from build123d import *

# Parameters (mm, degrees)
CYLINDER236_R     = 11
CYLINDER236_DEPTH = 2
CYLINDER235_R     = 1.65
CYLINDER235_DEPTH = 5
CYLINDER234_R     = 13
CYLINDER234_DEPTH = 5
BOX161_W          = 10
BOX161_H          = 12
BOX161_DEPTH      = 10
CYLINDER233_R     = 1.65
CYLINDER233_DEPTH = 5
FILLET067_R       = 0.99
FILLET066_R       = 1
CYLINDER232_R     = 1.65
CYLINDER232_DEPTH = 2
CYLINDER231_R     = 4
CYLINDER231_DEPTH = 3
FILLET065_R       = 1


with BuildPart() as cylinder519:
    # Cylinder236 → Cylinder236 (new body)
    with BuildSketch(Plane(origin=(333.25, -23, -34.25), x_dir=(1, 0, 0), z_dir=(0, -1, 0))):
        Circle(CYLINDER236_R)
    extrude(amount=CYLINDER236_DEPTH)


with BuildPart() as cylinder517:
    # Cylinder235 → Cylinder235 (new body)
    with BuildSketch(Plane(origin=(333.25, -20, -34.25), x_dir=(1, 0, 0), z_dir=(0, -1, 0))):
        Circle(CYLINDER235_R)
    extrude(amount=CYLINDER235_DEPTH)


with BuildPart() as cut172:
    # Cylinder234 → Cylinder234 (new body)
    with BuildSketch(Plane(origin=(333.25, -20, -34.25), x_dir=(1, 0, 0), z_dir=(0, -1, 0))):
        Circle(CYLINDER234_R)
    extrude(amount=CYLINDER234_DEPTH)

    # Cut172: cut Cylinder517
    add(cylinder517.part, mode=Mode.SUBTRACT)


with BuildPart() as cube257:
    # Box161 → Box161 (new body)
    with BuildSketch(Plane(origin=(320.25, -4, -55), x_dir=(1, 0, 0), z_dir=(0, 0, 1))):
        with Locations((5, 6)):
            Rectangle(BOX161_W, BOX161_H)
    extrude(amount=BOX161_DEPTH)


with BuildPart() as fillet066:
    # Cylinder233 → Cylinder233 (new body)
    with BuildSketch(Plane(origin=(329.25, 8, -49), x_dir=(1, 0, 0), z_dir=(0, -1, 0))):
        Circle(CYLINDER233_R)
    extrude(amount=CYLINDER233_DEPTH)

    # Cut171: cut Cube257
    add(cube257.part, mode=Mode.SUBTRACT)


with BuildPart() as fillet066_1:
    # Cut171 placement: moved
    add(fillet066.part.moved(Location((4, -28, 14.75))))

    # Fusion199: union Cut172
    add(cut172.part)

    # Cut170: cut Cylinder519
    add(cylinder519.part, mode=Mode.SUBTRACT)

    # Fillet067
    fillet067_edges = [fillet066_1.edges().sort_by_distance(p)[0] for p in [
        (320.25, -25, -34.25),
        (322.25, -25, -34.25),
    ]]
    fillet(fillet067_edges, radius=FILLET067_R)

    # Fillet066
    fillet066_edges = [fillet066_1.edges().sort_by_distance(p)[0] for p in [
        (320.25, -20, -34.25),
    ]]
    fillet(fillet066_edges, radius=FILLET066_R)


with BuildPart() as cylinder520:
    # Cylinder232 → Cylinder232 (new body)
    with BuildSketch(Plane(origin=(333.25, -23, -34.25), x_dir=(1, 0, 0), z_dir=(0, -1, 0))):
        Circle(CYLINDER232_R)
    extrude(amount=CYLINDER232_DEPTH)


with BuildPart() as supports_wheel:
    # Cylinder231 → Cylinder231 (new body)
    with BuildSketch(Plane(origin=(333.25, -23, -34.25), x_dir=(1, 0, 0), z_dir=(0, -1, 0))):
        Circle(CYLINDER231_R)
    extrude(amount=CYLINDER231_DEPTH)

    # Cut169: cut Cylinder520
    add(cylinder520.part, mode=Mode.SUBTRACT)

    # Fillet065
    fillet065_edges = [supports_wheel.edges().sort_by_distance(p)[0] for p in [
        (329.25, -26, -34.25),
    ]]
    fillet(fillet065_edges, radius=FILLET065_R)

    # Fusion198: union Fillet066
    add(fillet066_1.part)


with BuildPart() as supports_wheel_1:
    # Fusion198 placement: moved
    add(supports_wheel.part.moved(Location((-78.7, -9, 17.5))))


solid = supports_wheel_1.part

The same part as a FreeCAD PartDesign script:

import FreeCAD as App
import Part
import Sketcher

V = App.Vector


def edges_at(feature, points):
    """Names of the edges that pass closest to the given points."""
    edges = feature.Shape.Edges
    near = lambda p: min(range(len(edges)), key=lambda i: edges[i].distToShape(Part.Vertex(*p))[0])
    return sorted({f"Edge{near(p) + 1}" for p in points})


def add_polygon(sketch, points):
    """Adds a closed chain of lines whose ends are joined by coincident constraints."""
    first, n = sketch.GeometryCount, len(points)
    for a, b in zip(points, points[1:] + points[:1]):
        sketch.addGeometry(Part.LineSegment(App.Vector(*a, 0), App.Vector(*b, 0)), False)
    for i in range(n):
        sketch.addConstraint(Sketcher.Constraint("Coincident", first + i, 2, first + (i + 1) % n, 1))

doc = App.newDocument("Part")
params = doc.addObject("Spreadsheet::Sheet", "Params")
for row, (alias, value) in enumerate([
    ("sketch1_diameter", "22 mm"),
    ("pad1_length", "2 mm"),
    ("sketch2_diameter", "3.3 mm"),
    ("pad2_length", "5 mm"),
    ("sketch3_diameter", "26 mm"),
    ("pad3_length", "5 mm"),
    ("sketch4_width", "10 mm"),
    ("sketch4_height", "12 mm"),
    ("pad4_length", "10 mm"),
    ("sketch5_diameter", "3.3 mm"),
    ("pad5_length", "5 mm"),
    ("fillet_radius", "0.99 mm"),
    ("fillet2_radius", "1 mm"),
    ("sketch6_diameter", "3.3 mm"),
    ("pad6_length", "2 mm"),
    ("sketch7_diameter", "8 mm"),
    ("pad7_length", "3 mm"),
    ("fillet3_radius", "1 mm"),
], start=1):
    params.set(f"A{row}", alias)
    params.set(f"B{row}", "=" + value)
    params.setAlias(f"B{row}", alias)

body = doc.addObject("PartDesign::Body", "Body")

sketch1 = doc.addObject("Sketcher::SketchObject", "Sketch")
body.addObject(sketch1)
sketch1.AttachmentSupport = (doc.XZ_Plane, [""])
sketch1.MapMode = "FlatFace"
sketch1.AttachmentOffset = App.Placement(V(0, 0, 23), App.Rotation())
sketch1.addGeometry(Part.Circle(V(333, -34, 0), V(0, 0, 1), 11), False)
sketch1.addConstraint([
    Sketcher.Constraint("Diameter", 0, 22.0),
    Sketcher.Constraint("DistanceX", -1, 1, 0, 3, 333.25),
    Sketcher.Constraint("DistanceY", 0, 3, -1, 1, 34.25),
])
sketch1.setExpression("Constraints[0]", "Params.sketch1_diameter")
pad1 = doc.addObject("PartDesign::Pad", "Pad")
body.addObject(pad1)
pad1.Profile = sketch1
pad1.setExpression("Length", "Params.pad1_length")
body2 = doc.addObject("PartDesign::Body", "Body001")

sketch2 = doc.addObject("Sketcher::SketchObject", "Sketch001")
body2.addObject(sketch2)
sketch2.AttachmentSupport = (doc.getObject("XZ_Plane001"), [""])
sketch2.MapMode = "FlatFace"
sketch2.AttachmentOffset = App.Placement(V(0, 0, 20), App.Rotation())
sketch2.addGeometry(Part.Circle(V(333.2, -34.2, 0), V(0, 0, 1), 1.6), False)
sketch2.addConstraint([
    Sketcher.Constraint("Diameter", 0, 3.3),
    Sketcher.Constraint("DistanceX", -1, 1, 0, 3, 333.25),
    Sketcher.Constraint("DistanceY", 0, 3, -1, 1, 34.25),
])
sketch2.setExpression("Constraints[0]", "Params.sketch2_diameter")
pad2 = doc.addObject("PartDesign::Pad", "Pad001")
body2.addObject(pad2)
pad2.Profile = sketch2
pad2.setExpression("Length", "Params.pad2_length")
body3 = doc.addObject("PartDesign::Body", "Body002")

sketch3 = doc.addObject("Sketcher::SketchObject", "Sketch002")
body3.addObject(sketch3)
sketch3.AttachmentSupport = (doc.getObject("XZ_Plane002"), [""])
sketch3.MapMode = "FlatFace"
sketch3.AttachmentOffset = App.Placement(V(0, 0, 20), App.Rotation())
sketch3.addGeometry(Part.Circle(V(333, -34, 0), V(0, 0, 1), 13), False)
sketch3.addConstraint([
    Sketcher.Constraint("Diameter", 0, 26.0),
    Sketcher.Constraint("DistanceX", -1, 1, 0, 3, 333.25),
    Sketcher.Constraint("DistanceY", 0, 3, -1, 1, 34.25),
])
sketch3.setExpression("Constraints[0]", "Params.sketch3_diameter")
pad3 = doc.addObject("PartDesign::Pad", "Pad002")
body3.addObject(pad3)
pad3.Profile = sketch3
pad3.setExpression("Length", "Params.pad3_length")
doc.recompute()

boolean = doc.addObject("PartDesign::Boolean", "Boolean")
body3.addObject(boolean)
boolean.Type = "Cut"
boolean.addObjects([body2])
body4 = doc.addObject("PartDesign::Body", "Body003")

sketch4 = doc.addObject("Sketcher::SketchObject", "Sketch003")
body4.addObject(sketch4)
sketch4.AttachmentSupport = (doc.getObject("XY_Plane003"), [""])
sketch4.MapMode = "FlatFace"
sketch4.AttachmentOffset = App.Placement(V(0, 0, -55), App.Rotation())
add_polygon(sketch4, [(320, 8), (320, -4), (330, -4), (330, 8)])
sketch4.addConstraint([
    Sketcher.Constraint("Vertical", 0),
    Sketcher.Constraint("Horizontal", 1),
    Sketcher.Constraint("Vertical", 2),
    Sketcher.Constraint("Horizontal", 3),
    Sketcher.Constraint("DistanceX", 1, 1, 1, 2, 10.0),
    Sketcher.Constraint("DistanceY", 0, 2, 0, 1, 12.0),
    Sketcher.Constraint("DistanceY", 0, 2, -1, 1, 4.0),
    Sketcher.Constraint("DistanceX", -1, 1, 0, 2, 320.25),
])
sketch4.setExpression("Constraints[8]", "Params.sketch4_width")
sketch4.setExpression("Constraints[9]", "Params.sketch4_height")
pad4 = doc.addObject("PartDesign::Pad", "Pad003")
body4.addObject(pad4)
pad4.Profile = sketch4
pad4.setExpression("Length", "Params.pad4_length")
body5 = doc.addObject("PartDesign::Body", "Body004")

sketch5 = doc.addObject("Sketcher::SketchObject", "Sketch004")
body5.addObject(sketch5)
sketch5.AttachmentSupport = (doc.getObject("XZ_Plane004"), [""])
sketch5.MapMode = "FlatFace"
sketch5.AttachmentOffset = App.Placement(V(0, 0, -8), App.Rotation())
sketch5.addGeometry(Part.Circle(V(329.2, -49, 0), V(0, 0, 1), 1.6), False)
sketch5.addConstraint([
    Sketcher.Constraint("Diameter", 0, 3.3),
    Sketcher.Constraint("DistanceY", 0, 3, -1, 1, 49.0),
    Sketcher.Constraint("DistanceX", -1, 1, 0, 3, 329.25),
])
sketch5.setExpression("Constraints[0]", "Params.sketch5_diameter")
pad5 = doc.addObject("PartDesign::Pad", "Pad004")
body5.addObject(pad5)
pad5.Profile = sketch5
pad5.setExpression("Length", "Params.pad5_length")
doc.recompute()

boolean2 = doc.addObject("PartDesign::Boolean", "Boolean001")
body5.addObject(boolean2)
boolean2.Type = "Cut"
boolean2.addObjects([body4])
body6 = doc.addObject("PartDesign::Body", "Body005")
doc.recompute()

body5.Placement = App.Placement(V(4, -28, 14.75), App.Rotation(V(0, 0, 1), 0))
boolean3 = doc.addObject("PartDesign::Boolean", "Boolean002")
body6.addObject(boolean3)
boolean3.Type = "Fuse"
boolean3.addObjects([body5])
doc.recompute()

boolean4 = doc.addObject("PartDesign::Boolean", "Boolean003")
body6.addObject(boolean4)
boolean4.Type = "Fuse"
boolean4.addObjects([body3])
doc.recompute()

boolean5 = doc.addObject("PartDesign::Boolean", "Boolean004")
body6.addObject(boolean5)
boolean5.Type = "Cut"
boolean5.addObjects([body])
doc.recompute()

fillet = doc.addObject("PartDesign::Fillet", "Fillet")
body6.addObject(fillet)
fillet.Base = (boolean5, edges_at(boolean5, [(320.25, -25, -34.25), (322.25, -25, -34.25)]))
fillet.setExpression("Radius", "Params.fillet_radius")
doc.recompute()

fillet2 = doc.addObject("PartDesign::Fillet", "Fillet001")
body6.addObject(fillet2)
fillet2.Base = (fillet, edges_at(fillet, [(320.25, -20, -34.25)]))
fillet2.setExpression("Radius", "Params.fillet2_radius")
body7 = doc.addObject("PartDesign::Body", "Body006")

sketch6 = doc.addObject("Sketcher::SketchObject", "Sketch005")
body7.addObject(sketch6)
sketch6.AttachmentSupport = (doc.getObject("XZ_Plane006"), [""])
sketch6.MapMode = "FlatFace"
sketch6.AttachmentOffset = App.Placement(V(0, 0, 23), App.Rotation())
sketch6.addGeometry(Part.Circle(V(333.2, -34.2, 0), V(0, 0, 1), 1.6), False)
sketch6.addConstraint([
    Sketcher.Constraint("Diameter", 0, 3.3),
    Sketcher.Constraint("DistanceX", -1, 1, 0, 3, 333.25),
    Sketcher.Constraint("DistanceY", 0, 3, -1, 1, 34.25),
])
sketch6.setExpression("Constraints[0]", "Params.sketch6_diameter")
pad6 = doc.addObject("PartDesign::Pad", "Pad005")
body7.addObject(pad6)
pad6.Profile = sketch6
pad6.setExpression("Length", "Params.pad6_length")
body8 = doc.addObject("PartDesign::Body", "Body007")

sketch7 = doc.addObject("Sketcher::SketchObject", "Sketch006")
body8.addObject(sketch7)
sketch7.AttachmentSupport = (doc.getObject("XZ_Plane007"), [""])
sketch7.MapMode = "FlatFace"
sketch7.AttachmentOffset = App.Placement(V(0, 0, 23), App.Rotation())
sketch7.addGeometry(Part.Circle(V(333.2, -34.2, 0), V(0, 0, 1), 4), False)
sketch7.addConstraint([
    Sketcher.Constraint("Diameter", 0, 8.0),
    Sketcher.Constraint("DistanceX", -1, 1, 0, 3, 333.25),
    Sketcher.Constraint("DistanceY", 0, 3, -1, 1, 34.25),
])
sketch7.setExpression("Constraints[0]", "Params.sketch7_diameter")
pad7 = doc.addObject("PartDesign::Pad", "Pad006")
body8.addObject(pad7)
pad7.Profile = sketch7
pad7.setExpression("Length", "Params.pad7_length")
doc.recompute()

boolean6 = doc.addObject("PartDesign::Boolean", "Boolean005")
body8.addObject(boolean6)
boolean6.Type = "Cut"
boolean6.addObjects([body7])
doc.recompute()

fillet3 = doc.addObject("PartDesign::Fillet", "Fillet002")
body8.addObject(fillet3)
fillet3.Base = (boolean6, edges_at(boolean6, [(329.25, -26, -34.25)]))
fillet3.setExpression("Radius", "Params.fillet3_radius")
doc.recompute()

boolean7 = doc.addObject("PartDesign::Boolean", "Boolean006")
body8.addObject(boolean7)
boolean7.Type = "Fuse"
boolean7.addObjects([body6])
body9 = doc.addObject("PartDesign::Body", "Body008")
doc.recompute()

body8.Placement = App.Placement(V(-78.7, -9, 17.5), App.Rotation(V(0, 0, 1), 0))
boolean8 = doc.addObject("PartDesign::Boolean", "Boolean007")
body9.addObject(boolean8)
boolean8.Type = "Fuse"
boolean8.addObjects([body8])

doc.recompute()
